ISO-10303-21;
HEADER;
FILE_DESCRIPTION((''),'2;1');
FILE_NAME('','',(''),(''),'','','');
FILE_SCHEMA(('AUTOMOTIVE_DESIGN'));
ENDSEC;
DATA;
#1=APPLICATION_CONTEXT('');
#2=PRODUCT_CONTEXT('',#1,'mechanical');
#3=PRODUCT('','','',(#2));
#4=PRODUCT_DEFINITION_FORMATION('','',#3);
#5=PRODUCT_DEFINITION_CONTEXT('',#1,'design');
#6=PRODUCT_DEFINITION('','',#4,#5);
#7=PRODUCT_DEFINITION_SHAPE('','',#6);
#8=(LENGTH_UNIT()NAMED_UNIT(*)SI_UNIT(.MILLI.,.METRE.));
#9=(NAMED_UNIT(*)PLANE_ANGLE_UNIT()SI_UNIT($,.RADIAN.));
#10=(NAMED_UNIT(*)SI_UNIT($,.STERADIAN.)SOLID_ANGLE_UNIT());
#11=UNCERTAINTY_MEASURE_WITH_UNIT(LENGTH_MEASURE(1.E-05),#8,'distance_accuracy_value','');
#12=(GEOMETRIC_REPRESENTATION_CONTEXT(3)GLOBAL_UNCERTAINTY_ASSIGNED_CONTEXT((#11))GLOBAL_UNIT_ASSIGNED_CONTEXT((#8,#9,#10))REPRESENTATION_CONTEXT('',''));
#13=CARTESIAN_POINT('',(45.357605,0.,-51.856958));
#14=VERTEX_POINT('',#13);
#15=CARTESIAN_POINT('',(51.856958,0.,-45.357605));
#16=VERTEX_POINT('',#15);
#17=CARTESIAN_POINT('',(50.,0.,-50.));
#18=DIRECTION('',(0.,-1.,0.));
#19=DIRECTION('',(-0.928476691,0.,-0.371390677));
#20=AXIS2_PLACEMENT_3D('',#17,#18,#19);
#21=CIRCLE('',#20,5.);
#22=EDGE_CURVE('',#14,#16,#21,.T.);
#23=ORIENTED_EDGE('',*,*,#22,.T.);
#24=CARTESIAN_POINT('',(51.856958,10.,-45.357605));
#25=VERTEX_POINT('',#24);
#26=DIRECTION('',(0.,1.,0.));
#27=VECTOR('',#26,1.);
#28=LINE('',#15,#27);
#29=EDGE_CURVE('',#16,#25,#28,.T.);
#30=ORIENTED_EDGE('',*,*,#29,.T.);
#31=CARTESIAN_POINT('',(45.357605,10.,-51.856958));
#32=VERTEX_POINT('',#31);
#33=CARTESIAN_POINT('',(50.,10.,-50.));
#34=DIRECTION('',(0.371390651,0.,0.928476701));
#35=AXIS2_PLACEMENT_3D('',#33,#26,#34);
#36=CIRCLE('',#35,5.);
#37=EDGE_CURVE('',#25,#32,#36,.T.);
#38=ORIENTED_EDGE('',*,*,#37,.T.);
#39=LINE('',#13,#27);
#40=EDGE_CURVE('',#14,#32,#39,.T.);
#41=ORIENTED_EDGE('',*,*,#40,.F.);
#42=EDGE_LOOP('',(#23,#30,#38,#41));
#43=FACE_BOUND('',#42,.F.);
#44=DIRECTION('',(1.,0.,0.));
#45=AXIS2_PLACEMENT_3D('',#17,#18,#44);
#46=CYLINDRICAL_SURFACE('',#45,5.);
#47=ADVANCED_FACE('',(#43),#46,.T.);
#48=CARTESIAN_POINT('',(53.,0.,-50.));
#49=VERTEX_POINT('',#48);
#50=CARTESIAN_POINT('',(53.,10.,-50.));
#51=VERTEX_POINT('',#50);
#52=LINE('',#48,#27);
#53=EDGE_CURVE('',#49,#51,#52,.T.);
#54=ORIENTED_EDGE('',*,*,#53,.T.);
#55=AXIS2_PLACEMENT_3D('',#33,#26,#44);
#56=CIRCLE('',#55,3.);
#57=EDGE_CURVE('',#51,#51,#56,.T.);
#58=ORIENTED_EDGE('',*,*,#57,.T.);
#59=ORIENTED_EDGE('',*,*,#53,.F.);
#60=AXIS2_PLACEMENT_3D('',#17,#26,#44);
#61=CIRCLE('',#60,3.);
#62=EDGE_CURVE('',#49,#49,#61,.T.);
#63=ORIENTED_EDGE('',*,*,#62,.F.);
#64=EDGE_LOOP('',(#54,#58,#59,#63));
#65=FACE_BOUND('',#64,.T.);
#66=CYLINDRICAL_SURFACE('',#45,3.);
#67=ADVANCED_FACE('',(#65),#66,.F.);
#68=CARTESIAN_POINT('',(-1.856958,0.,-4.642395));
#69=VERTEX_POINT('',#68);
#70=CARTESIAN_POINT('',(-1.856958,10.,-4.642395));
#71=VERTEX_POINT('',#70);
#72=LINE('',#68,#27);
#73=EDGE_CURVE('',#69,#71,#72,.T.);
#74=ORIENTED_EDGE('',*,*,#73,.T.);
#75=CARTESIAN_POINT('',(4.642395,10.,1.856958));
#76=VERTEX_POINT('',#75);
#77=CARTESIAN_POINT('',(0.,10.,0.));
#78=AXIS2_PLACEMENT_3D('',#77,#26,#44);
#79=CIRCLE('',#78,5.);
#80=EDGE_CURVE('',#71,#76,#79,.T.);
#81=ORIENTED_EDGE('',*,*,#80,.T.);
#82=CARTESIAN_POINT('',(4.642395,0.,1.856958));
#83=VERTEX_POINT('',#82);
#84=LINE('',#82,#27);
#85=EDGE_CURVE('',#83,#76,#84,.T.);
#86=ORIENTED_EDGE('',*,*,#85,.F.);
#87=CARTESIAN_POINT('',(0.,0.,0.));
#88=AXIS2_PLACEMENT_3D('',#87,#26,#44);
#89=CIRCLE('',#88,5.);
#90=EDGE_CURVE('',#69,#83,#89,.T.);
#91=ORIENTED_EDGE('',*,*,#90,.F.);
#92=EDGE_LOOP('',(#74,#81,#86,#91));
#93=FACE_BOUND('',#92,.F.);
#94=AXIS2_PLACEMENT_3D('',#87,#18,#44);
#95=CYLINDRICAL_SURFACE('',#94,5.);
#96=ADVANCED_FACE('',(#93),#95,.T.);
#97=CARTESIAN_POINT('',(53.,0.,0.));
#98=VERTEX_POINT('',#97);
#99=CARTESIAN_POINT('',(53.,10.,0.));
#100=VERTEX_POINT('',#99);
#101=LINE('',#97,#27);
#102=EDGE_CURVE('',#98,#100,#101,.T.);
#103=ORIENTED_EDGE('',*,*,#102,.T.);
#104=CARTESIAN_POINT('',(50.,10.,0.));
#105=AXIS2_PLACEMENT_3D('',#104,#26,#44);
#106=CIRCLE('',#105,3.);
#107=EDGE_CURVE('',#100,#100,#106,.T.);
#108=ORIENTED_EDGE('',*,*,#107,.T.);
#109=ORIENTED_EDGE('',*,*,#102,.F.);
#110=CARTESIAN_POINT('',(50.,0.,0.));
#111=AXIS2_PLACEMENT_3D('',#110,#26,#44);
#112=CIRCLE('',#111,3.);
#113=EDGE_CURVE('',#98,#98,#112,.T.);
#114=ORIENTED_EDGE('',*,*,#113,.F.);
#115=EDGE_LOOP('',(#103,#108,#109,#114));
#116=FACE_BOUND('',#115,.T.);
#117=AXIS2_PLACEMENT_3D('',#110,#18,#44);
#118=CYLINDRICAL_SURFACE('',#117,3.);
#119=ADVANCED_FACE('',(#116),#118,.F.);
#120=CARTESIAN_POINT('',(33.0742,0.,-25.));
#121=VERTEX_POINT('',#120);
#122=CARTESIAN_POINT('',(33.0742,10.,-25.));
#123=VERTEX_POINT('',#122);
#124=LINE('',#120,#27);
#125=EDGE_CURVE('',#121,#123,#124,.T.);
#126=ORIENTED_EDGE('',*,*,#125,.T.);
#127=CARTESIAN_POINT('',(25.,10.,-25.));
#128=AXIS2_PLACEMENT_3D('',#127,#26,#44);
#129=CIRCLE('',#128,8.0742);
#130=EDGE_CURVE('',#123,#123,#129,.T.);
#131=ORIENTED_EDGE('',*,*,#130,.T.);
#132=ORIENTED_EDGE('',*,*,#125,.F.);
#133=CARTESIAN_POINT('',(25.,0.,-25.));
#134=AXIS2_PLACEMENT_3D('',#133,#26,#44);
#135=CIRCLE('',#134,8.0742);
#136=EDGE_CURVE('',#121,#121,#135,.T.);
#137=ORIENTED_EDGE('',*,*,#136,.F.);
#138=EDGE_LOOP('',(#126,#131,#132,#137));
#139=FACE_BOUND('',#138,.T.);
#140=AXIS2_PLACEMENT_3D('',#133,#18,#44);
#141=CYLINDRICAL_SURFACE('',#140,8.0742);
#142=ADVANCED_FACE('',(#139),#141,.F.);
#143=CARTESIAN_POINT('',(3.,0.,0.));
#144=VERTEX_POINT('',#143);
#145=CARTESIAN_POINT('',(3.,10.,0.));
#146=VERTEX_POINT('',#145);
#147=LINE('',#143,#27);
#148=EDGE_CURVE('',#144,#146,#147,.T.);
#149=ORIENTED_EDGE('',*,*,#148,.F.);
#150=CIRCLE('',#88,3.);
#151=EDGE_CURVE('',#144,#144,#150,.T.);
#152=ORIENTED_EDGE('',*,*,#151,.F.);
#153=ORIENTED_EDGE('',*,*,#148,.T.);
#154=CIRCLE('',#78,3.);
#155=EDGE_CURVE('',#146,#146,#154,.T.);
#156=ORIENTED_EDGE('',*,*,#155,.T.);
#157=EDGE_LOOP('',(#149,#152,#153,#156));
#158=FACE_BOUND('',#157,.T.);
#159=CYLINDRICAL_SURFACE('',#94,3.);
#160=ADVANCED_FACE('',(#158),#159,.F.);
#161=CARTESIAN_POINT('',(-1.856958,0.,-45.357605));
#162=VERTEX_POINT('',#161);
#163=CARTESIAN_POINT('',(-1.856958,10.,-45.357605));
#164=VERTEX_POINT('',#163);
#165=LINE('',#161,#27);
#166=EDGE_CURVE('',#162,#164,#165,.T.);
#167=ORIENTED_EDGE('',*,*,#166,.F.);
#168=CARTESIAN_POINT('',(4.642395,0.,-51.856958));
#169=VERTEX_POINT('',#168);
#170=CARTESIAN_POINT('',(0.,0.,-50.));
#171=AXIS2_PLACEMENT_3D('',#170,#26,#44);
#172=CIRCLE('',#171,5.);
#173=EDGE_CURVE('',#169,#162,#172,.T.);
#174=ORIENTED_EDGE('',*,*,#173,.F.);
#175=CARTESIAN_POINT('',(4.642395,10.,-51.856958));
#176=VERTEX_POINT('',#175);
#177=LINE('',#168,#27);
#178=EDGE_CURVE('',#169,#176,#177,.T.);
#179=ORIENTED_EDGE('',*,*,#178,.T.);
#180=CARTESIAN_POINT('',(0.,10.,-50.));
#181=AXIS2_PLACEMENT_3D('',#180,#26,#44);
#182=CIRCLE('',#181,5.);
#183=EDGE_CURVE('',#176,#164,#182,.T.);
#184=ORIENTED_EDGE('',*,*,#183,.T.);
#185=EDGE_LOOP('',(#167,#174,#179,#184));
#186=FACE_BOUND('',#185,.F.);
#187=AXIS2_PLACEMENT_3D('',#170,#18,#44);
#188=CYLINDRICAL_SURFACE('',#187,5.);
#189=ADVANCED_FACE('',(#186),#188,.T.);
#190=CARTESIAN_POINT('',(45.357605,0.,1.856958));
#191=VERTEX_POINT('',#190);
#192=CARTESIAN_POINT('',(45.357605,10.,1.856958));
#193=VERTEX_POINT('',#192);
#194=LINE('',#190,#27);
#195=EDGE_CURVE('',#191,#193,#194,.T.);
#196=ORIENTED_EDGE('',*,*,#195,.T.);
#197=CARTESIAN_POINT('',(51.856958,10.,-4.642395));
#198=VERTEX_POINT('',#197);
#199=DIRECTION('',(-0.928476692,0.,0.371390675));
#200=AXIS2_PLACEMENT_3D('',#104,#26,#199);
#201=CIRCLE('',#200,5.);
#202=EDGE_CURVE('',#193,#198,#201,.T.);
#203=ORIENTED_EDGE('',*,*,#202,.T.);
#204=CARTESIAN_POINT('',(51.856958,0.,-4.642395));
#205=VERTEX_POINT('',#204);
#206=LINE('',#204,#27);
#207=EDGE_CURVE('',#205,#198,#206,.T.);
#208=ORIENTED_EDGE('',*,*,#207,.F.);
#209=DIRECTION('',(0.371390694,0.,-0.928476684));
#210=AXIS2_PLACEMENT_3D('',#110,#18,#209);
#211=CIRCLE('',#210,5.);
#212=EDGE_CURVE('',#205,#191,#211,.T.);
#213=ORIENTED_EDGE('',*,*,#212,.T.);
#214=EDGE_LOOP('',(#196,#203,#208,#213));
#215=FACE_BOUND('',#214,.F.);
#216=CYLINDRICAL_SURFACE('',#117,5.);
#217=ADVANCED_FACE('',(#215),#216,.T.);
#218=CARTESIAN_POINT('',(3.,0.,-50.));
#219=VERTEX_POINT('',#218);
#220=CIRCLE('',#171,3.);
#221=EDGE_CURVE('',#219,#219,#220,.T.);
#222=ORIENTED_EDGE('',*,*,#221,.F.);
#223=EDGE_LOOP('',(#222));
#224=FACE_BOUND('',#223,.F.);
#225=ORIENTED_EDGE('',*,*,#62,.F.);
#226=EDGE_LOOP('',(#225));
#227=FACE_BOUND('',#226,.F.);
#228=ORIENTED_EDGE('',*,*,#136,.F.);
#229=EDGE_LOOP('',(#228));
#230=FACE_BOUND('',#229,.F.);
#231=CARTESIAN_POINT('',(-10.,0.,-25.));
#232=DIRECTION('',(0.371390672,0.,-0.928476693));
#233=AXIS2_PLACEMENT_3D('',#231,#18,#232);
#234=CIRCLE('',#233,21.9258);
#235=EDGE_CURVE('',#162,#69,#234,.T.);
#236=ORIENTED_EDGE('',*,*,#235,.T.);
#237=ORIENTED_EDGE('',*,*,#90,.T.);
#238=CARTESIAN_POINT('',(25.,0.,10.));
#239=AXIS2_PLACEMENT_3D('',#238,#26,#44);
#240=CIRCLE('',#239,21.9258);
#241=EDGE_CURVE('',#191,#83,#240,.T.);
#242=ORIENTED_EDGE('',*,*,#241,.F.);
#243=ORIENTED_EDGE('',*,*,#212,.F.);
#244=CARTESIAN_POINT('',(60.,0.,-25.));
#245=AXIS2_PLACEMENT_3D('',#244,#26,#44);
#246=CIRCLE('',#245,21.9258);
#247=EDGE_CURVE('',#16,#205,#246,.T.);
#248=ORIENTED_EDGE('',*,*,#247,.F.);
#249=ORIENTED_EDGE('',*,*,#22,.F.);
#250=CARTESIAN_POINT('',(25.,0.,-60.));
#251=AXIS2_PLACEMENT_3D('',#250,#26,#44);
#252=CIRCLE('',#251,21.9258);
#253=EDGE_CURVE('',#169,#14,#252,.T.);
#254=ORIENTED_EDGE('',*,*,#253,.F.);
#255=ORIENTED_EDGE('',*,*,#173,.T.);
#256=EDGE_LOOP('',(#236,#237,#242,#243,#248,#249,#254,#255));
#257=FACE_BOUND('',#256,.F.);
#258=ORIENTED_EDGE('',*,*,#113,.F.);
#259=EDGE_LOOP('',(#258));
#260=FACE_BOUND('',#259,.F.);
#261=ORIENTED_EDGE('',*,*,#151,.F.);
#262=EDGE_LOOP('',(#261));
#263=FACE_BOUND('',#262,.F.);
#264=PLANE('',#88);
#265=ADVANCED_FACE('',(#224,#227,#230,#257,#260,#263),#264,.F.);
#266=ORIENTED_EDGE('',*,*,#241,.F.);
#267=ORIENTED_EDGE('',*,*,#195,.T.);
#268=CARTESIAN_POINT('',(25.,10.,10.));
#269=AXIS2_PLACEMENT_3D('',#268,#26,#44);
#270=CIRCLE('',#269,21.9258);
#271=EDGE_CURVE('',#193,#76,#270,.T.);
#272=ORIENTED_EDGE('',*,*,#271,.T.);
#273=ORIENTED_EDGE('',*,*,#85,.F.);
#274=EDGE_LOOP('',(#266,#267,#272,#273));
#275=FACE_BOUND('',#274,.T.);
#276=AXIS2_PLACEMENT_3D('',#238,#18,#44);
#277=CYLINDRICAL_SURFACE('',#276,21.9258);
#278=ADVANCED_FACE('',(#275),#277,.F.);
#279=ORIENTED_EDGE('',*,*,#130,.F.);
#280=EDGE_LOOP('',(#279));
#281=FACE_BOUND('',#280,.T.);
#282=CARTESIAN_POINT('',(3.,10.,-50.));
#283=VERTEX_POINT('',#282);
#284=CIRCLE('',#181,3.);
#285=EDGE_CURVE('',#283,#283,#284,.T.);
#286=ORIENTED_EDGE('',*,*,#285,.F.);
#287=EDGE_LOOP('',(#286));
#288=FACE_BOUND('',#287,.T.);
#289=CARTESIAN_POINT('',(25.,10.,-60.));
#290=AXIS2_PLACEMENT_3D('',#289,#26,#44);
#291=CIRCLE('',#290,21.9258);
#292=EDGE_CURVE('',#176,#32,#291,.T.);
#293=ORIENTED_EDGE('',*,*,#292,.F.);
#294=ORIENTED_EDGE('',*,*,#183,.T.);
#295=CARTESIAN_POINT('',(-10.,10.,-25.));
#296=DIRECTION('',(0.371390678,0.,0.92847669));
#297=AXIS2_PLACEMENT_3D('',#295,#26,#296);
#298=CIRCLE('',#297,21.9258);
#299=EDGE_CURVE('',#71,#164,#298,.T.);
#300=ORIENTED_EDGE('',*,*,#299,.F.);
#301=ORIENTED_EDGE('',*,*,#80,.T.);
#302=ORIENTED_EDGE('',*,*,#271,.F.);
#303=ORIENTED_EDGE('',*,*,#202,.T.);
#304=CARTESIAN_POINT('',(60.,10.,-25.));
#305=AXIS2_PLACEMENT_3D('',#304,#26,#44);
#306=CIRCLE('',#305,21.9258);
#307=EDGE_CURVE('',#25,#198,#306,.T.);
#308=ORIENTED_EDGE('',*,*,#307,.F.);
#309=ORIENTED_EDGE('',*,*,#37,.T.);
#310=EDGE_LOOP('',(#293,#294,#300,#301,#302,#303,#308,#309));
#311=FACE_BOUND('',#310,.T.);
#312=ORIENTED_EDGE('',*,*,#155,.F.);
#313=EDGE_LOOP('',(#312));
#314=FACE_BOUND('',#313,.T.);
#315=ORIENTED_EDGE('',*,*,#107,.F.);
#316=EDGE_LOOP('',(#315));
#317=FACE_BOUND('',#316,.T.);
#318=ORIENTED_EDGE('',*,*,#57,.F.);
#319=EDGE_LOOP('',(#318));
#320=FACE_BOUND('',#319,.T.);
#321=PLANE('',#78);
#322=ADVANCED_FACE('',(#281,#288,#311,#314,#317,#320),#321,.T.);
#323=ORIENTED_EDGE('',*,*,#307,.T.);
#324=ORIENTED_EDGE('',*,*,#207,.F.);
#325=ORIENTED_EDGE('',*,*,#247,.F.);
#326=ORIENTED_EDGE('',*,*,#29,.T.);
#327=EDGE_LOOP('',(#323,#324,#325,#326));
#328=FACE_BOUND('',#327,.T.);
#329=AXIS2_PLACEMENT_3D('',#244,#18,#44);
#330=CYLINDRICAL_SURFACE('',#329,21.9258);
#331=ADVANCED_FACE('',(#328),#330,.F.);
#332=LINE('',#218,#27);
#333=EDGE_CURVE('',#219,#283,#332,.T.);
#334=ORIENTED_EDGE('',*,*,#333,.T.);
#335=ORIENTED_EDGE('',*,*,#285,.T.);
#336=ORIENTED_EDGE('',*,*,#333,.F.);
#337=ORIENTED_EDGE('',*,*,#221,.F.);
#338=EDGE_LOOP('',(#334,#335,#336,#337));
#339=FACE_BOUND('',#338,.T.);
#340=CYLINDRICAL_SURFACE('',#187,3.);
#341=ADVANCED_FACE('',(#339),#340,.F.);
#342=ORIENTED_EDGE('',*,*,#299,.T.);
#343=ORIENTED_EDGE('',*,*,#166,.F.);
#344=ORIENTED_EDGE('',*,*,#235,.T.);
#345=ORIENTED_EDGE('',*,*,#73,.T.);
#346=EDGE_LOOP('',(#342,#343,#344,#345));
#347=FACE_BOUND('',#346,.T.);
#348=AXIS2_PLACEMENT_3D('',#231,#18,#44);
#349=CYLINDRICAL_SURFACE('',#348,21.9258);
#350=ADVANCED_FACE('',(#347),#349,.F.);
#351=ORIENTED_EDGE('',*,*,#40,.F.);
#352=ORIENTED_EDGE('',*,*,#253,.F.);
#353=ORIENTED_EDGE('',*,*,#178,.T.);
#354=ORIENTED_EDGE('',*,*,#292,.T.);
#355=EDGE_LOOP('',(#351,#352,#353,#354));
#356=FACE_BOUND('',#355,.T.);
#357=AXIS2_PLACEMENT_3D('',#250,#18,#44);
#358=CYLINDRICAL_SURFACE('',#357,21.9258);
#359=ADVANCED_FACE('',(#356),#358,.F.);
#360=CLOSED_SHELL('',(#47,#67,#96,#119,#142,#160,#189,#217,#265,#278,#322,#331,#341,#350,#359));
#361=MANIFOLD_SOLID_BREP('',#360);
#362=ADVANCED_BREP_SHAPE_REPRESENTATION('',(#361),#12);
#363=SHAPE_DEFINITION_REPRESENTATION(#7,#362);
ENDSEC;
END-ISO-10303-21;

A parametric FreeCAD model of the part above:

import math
import FreeCAD as App
import Part
import Sketcher

V = App.Vector
Q = App.Units.Quantity

doc = App.newDocument("Part")
body = doc.addObject("PartDesign::Body", "Body")

# Sketch on XZ plane
sketch1 = body.newObject("Sketcher::SketchObject", "Sketch")
sketch1.AttachmentSupport = (doc.getObject("XZ_Plane"), [""])
sketch1.MapMode = "FlatFace"
sketch1.addGeometry(Part.ArcOfCircle(Part.Circle(V(0, 0, 0), V(0, 0, 1), 5), math.radians(21.80141), math.radians(248.198591)), False)
sketch1.addGeometry(Part.ArcOfCircle(Part.Circle(V(25, 10, 0), V(0, 0, 1), 21.9258), math.radians(-158.198591), math.radians(-21.80141)), False)
sketch1.addGeometry(Part.ArcOfCircle(Part.Circle(V(50, 0, 0), V(0, 0, 1), 5), math.radians(-68.198589), math.radians(158.198591)), False)
sketch1.addGeometry(Part.ArcOfCircle(Part.Circle(V(60, -25, 0), V(0, 0, 1), 21.9258), math.radians(111.801409), math.radians(248.19859)), False)
sketch1.addGeometry(Part.ArcOfCircle(Part.Circle(V(50, -50, 0), V(0, 0, 1), 5), math.radians(-158.19859), math.radians(68.198592)), False)
sketch1.addGeometry(Part.ArcOfCircle(Part.Circle(V(25, -60, 0), V(0, 0, 1), 21.9258), math.radians(21.801409), math.radians(158.19859)), False)
sketch1.addGeometry(Part.ArcOfCircle(Part.Circle(V(0, -50, 0), V(0, 0, 1), 5), math.radians(111.801411), math.radians(338.198592)), False)
sketch1.addGeometry(Part.ArcOfCircle(Part.Circle(V(-10, -25, 0), V(0, 0, 1), 21.9258), math.radians(-68.198591), math.radians(68.19859)), False)
sketch1.addGeometry(Part.Circle(V(0, 0, 0), V(0, 0, 1), 3), False)
sketch1.addGeometry(Part.Circle(V(25, -25, 0), V(0, 0, 1), 8.0742), False)
sketch1.addGeometry(Part.Circle(V(0, -50, 0), V(0, 0, 1), 3), False)
sketch1.addGeometry(Part.Circle(V(50, -50, 0), V(0, 0, 1), 3), False)
sketch1.addGeometry(Part.Circle(V(50, 0, 0), V(0, 0, 1), 3), False)
sketch1.addConstraint(Sketcher.Constraint("Tangent", 0, 1, 1, 1))
sketch1.addConstraint(Sketcher.Constraint("Tangent", 1, 2, 2, 2))
sketch1.addConstraint(Sketcher.Constraint("Tangent", 2, 1, 3, 1))
sketch1.addConstraint(Sketcher.Constraint("Tangent", 3, 2, 4, 2))
sketch1.addConstraint(Sketcher.Constraint("Tangent", 4, 1, 5, 1))
sketch1.addConstraint(Sketcher.Constraint("Tangent", 5, 2, 6, 2))
sketch1.addConstraint(Sketcher.Constraint("Tangent", 6, 1, 7, 1))
sketch1.addConstraint(Sketcher.Constraint("Tangent", 7, 2, 0, 2))
sketch1.addConstraint(Sketcher.Constraint("Coincident", 0, 3, -1, 1))
sketch1.addConstraint(Sketcher.Constraint("Coincident", 8, 3, -1, 1))
sketch1.addConstraint(Sketcher.Constraint("Coincident", 10, 3, 6, 3))
sketch1.addConstraint(Sketcher.Constraint("Coincident", 11, 3, 4, 3))
sketch1.addConstraint(Sketcher.Constraint("Coincident", 12, 3, 2, 3))
sketch1.addConstraint(Sketcher.Constraint("Equal", 0, 2))
sketch1.addConstraint(Sketcher.Constraint("Equal", 1, 3))
sketch1.addConstraint(Sketcher.Constraint("Equal", 2, 4))
sketch1.addConstraint(Sketcher.Constraint("Equal", 3, 5))
sketch1.addConstraint(Sketcher.Constraint("Equal", 4, 6))
sketch1.addConstraint(Sketcher.Constraint("Equal", 5, 7))
sketch1.addConstraint(Sketcher.Constraint("Equal", 8, 10))
sketch1.addConstraint(Sketcher.Constraint("Equal", 10, 11))
sketch1.addConstraint(Sketcher.Constraint("Equal", 11, 12))
sketch1.addConstraint(Sketcher.Constraint("PointOnObject", 2, 3, -1))
sketch1.addConstraint(Sketcher.Constraint("PointOnObject", 6, 3, -2))
sketch1.addConstraint(Sketcher.Constraint("Horizontal", 4, 3, 6, 3))
sketch1.addConstraint(Sketcher.Constraint("Horizontal", 3, 3, 7, 3))
sketch1.addConstraint(Sketcher.Constraint("Horizontal", 7, 3, 9, 3))
sketch1.addConstraint(Sketcher.Constraint("Vertical", 5, 3, 9, 3))
sketch1.addConstraint(Sketcher.Constraint("Diameter", 8, Q("6 mm")))
sketch1.addConstraint(Sketcher.Constraint("Radius", 0, Q("5 mm")))
sketch1.addConstraint(Sketcher.Constraint("DistanceY", -1, 1, 1, 3, Q("10 mm")))
sketch1.addConstraint(Sketcher.Constraint("DistanceX", -1, 1, 2, 3, Q("50 mm")))
sketch1.addConstraint(Sketcher.Constraint("DistanceY", 4, 3, -1, 1, Q("50 mm")))
sketch1.addConstraint(Sketcher.Constraint("Diameter", 9, Q("16.1484 mm")))
pad1 = body.newObject("PartDesign::Pad", "Pad")
pad1.Profile = sketch1
pad1.Length = 10
pad1.Reversed = True

doc.recompute()
